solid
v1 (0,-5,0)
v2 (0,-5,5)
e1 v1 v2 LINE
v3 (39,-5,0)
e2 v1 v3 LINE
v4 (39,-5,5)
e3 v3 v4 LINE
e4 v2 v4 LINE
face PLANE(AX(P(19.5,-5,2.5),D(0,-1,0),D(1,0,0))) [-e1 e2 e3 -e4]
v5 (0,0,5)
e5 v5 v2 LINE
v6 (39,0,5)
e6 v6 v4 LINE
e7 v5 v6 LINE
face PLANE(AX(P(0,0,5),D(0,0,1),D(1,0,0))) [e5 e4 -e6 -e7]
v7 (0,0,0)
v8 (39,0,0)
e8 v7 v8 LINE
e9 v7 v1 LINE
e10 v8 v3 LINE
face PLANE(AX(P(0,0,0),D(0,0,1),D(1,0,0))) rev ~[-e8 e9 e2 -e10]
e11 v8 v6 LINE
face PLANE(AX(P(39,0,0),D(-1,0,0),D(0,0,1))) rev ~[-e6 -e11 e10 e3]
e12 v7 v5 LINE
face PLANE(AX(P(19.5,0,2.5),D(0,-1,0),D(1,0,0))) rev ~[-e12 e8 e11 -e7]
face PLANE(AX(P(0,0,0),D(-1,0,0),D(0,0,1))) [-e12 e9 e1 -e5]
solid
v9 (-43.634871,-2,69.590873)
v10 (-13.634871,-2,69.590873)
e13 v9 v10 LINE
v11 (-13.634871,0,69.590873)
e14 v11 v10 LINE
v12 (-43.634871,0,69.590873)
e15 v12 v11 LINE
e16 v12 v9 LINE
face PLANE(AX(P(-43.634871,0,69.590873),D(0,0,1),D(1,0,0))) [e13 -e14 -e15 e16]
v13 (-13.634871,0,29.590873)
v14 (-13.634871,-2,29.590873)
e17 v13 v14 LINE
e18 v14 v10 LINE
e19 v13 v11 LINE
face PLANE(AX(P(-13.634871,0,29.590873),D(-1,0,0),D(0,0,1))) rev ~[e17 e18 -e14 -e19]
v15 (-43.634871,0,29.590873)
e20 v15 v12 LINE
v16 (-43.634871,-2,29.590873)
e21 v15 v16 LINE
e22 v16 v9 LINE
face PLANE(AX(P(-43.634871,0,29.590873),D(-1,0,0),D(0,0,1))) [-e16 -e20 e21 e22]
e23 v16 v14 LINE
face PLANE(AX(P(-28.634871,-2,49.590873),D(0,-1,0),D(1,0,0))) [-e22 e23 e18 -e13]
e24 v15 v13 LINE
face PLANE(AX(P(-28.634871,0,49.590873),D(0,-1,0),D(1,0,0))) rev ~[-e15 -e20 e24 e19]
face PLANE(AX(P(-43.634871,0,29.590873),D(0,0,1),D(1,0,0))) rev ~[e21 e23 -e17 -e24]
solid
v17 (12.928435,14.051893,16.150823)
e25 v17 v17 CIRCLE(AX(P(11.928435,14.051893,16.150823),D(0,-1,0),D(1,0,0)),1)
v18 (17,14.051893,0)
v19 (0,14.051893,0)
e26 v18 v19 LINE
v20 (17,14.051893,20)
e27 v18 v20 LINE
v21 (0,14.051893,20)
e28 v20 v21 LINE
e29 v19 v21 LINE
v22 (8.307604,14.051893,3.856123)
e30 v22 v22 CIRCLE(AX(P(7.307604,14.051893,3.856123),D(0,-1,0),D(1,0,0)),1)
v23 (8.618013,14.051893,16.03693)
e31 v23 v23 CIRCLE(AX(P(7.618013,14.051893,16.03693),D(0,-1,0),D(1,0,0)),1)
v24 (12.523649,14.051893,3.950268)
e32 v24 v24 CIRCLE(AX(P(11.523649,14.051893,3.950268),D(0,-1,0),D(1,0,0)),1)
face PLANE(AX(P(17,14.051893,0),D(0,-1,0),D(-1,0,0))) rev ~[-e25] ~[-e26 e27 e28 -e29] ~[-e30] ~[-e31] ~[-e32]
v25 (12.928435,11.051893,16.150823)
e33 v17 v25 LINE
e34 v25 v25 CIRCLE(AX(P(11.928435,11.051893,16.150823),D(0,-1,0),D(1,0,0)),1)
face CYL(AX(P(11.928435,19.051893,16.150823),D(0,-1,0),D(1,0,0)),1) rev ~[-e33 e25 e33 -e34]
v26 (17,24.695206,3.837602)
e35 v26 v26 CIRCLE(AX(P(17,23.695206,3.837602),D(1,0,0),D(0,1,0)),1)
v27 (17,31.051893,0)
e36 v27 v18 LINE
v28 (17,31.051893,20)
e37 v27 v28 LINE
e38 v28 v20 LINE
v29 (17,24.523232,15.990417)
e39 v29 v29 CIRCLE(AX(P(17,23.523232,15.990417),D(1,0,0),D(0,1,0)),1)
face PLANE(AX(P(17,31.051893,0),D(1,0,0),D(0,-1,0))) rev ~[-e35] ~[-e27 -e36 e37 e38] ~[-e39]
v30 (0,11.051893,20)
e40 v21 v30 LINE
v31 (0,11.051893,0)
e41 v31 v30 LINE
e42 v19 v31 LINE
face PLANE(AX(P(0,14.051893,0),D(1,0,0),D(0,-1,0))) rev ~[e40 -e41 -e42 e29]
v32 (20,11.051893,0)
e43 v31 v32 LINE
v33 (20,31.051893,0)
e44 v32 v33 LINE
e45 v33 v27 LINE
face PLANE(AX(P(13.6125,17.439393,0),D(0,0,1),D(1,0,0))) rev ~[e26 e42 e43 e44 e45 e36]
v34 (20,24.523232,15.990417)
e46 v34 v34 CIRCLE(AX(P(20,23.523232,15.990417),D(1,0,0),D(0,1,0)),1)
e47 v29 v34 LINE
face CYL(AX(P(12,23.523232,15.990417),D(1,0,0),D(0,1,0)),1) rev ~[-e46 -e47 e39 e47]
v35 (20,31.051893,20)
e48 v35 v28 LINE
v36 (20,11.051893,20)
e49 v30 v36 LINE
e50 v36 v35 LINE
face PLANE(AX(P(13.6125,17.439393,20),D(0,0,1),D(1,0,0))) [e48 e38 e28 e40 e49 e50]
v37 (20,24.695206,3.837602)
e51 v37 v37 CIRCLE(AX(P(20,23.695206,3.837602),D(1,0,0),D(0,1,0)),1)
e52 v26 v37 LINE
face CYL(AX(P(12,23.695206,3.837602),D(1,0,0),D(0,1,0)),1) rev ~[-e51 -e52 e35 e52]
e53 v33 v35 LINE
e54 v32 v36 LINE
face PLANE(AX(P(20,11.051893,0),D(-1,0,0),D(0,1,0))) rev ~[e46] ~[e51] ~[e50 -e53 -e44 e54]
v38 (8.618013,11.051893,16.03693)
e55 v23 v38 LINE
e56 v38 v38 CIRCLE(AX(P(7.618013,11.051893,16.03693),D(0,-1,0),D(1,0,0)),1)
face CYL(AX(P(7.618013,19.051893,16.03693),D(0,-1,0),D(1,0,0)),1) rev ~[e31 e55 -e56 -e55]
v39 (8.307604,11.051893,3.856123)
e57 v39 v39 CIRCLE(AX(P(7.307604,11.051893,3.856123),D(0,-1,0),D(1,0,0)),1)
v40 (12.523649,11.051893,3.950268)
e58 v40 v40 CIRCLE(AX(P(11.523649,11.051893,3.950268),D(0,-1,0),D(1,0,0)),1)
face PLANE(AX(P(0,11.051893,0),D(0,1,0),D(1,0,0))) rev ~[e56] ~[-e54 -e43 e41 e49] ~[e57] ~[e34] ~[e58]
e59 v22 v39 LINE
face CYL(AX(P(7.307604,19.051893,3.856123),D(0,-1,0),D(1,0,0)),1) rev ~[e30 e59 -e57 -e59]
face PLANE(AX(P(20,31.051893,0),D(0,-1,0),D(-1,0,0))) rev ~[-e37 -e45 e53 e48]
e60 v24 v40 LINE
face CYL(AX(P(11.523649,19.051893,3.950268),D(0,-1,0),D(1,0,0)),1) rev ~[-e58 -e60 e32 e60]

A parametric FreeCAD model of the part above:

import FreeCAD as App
import Part
import Sketcher
from FreeCAD import Vector


def add_polygon(sketch, points):
    """Adds a closed chain of lines whose ends are joined by coincident constraints."""
    first, n = sketch.GeometryCount, len(points)
    for a, b in zip(points, points[1:] + points[:1]):
        sketch.addGeometry(Part.LineSegment(App.Vector(*a, 0), App.Vector(*b, 0)), False)
    for i in range(n):
        sketch.addConstraint(Sketcher.Constraint("Coincident", first + i, 2, first + (i + 1) % n, 1))

doc = App.newDocument("Part")
body = doc.addObject("PartDesign::Body", "Body")

# Sketch on XZ plane
sketch1 = body.newObject("Sketcher::SketchObject", "Sketch")
sketch1.AttachmentSupport = (doc.getObject("XZ_Plane"), [""])
sketch1.MapMode = "FlatFace"
add_polygon(sketch1, [(0, 5), (0, 0), (39, 0), (39, 5)])  # lines 0-3
sketch1.addConstraint(Sketcher.Constraint("Vertical", 0))
sketch1.addConstraint(Sketcher.Constraint("Horizontal", 1))
sketch1.addConstraint(Sketcher.Constraint("Vertical", 2))
sketch1.addConstraint(Sketcher.Constraint("Horizontal", 3))
sketch1.addConstraint(Sketcher.Constraint("Coincident", 0, 2, -1, 1))
sketch1.addConstraint(Sketcher.Constraint("DistanceX", 1, 1, 1, 2, 39.0))
sketch1.addConstraint(Sketcher.Constraint("DistanceY", 0, 2, 0, 1, 5.0))
pad1 = body.newObject("PartDesign::Pad", "Pad")
pad1.Profile = sketch1
pad1.Length = 5
body2 = doc.addObject("PartDesign::Body", "Body001")

# Sketch on XZ plane
sketch2 = body2.newObject("Sketcher::SketchObject", "Sketch001")
sketch2.AttachmentSupport = (doc.getObject("XZ_Plane001"), [""])
sketch2.MapMode = "FlatFace"
add_polygon(sketch2, [(-44, 70), (-44, 30), (-14, 30), (-14, 70)])  # lines 0-3
sketch2.addConstraint(Sketcher.Constraint("Vertical", 0))
sketch2.addConstraint(Sketcher.Constraint("Horizontal", 1))
sketch2.addConstraint(Sketcher.Constraint("Vertical", 2))
sketch2.addConstraint(Sketcher.Constraint("Horizontal", 3))
sketch2.addConstraint(Sketcher.Constraint("DistanceX", 1, 1, 1, 2, 30.0))
sketch2.addConstraint(Sketcher.Constraint("DistanceY", 0, 2, 0, 1, 40.0))
sketch2.addConstraint(Sketcher.Constraint("DistanceX", 0, 2, -1, 1, 43.634871))
sketch2.addConstraint(Sketcher.Constraint("DistanceY", -1, 1, 0, 2, 29.590873))
pad2 = body2.newObject("PartDesign::Pad", "Pad001")
pad2.Profile = sketch2
pad2.Length = 2
body3 = doc.addObject("PartDesign::Body", "Body002")

# Sketch on XY plane
sketch3 = body3.newObject("Sketcher::SketchObject", "Sketch002")
sketch3.AttachmentSupport = (doc.getObject("XY_Plane002"), [""])
sketch3.MapMode = "FlatFace"
add_polygon(sketch3, [(17, 14.1), (0, 14.1), (0, 11.1), (20, 11.1), (20, 31.1), (17, 31.1)])  # lines 0-5
sketch3.addConstraint(Sketcher.Constraint("Horizontal", 0))
sketch3.addConstraint(Sketcher.Constraint("Vertical", 1))
sketch3.addConstraint(Sketcher.Constraint("Horizontal", 2))
sketch3.addConstraint(Sketcher.Constraint("Vertical", 3))
sketch3.addConstraint(Sketcher.Constraint("Horizontal", 4))
sketch3.addConstraint(Sketcher.Constraint("Vertical", 5))
sketch3.addConstraint(Sketcher.Constraint("PointOnObject", 0, 2, -2))
sketch3.addConstraint(Sketcher.Constraint("Equal", 4, 1))
sketch3.addConstraint(Sketcher.Constraint("Equal", 2, 3))
sketch3.addConstraint(Sketcher.Constraint("DistanceX", 0, 2, 0, 1, 17.0))
sketch3.addConstraint(Sketcher.Constraint("DistanceX", 2, 1, 2, 2, 20.0))
sketch3.addConstraint(Sketcher.Constraint("DistanceY", -1, 1, 0, 2, 14.051893))
pad3 = body3.newObject("PartDesign::Pad", "Pad002")
pad3.Profile = sketch3
pad3.Length = 20

# Sketch on XZ plane
sketch4 = body3.newObject("Sketcher::SketchObject", "Sketch003")
sketch4.AttachmentSupport = (doc.getObject("XZ_Plane002"), [""])
sketch4.MapMode = "FlatFace"
sketch4.AttachmentOffset = App.Placement(Vector(0, 0, -14.051893), App.Rotation())
sketch4.addGeometry(Part.Circle(Vector(7.3, 3.9, 0), Vector(0, 0, 1), 1), False)
sketch4.addGeometry(Part.Circle(Vector(11.5, 4, 0), Vector(0, 0, 1), 1), False)
sketch4.addGeometry(Part.Circle(Vector(11.9, 16.2, 0), Vector(0, 0, 1), 1), False)
sketch4.addGeometry(Part.Circle(Vector(7.6, 16, 0), Vector(0, 0, 1), 1), False)
sketch4.addConstraint(Sketcher.Constraint("Equal", 0, 1))
sketch4.addConstraint(Sketcher.Constraint("Equal", 1, 2))
sketch4.addConstraint(Sketcher.Constraint("Equal", 2, 3))
sketch4.addConstraint(Sketcher.Constraint("Diameter", 0, 2.0))
sketch4.addConstraint(Sketcher.Constraint("DistanceY", 0, 3, 2, 3, 12.2947))
sketch4.addConstraint(Sketcher.Constraint("DistanceX", -1, 1, 1, 3, 11.523649))
sketch4.addConstraint(Sketcher.Constraint("DistanceY", -1, 1, 1, 3, 3.950268))
sketch4.addConstraint(Sketcher.Constraint("DistanceY", -1, 1, 3, 3, 16.03693))
sketch4.addConstraint(Sketcher.Constraint("DistanceX", 0, 3, 2, 3, 4.620831))
sketch4.addConstraint(Sketcher.Constraint("DistanceX", 0, 3, 3, 3, 0.310409))
sketch4.addConstraint(Sketcher.Constraint("DistanceX", -1, 1, 0, 3, 7.307604))
sketch4.addConstraint(Sketcher.Constraint("DistanceY", -1, 1, 0, 3, 3.856123))
doc.recompute()
hole = body3.newObject("PartDesign::Hole", "Hole")
hole.Profile = sketch4
hole.ThreadType = "None"
hole.Diameter = 2
hole.DepthType = "Dimension"
hole.Depth = 5
hole.DrillPoint = "Angled"
hole.DrillPointAngle = 118
hole.Reversed = True

# Sketch on YZ plane
sketch5 = body3.newObject("Sketcher::SketchObject", "Sketch004")
sketch5.AttachmentSupport = (doc.getObject("YZ_Plane002"), [""])
sketch5.MapMode = "FlatFace"
sketch5.AttachmentOffset = App.Placement(Vector(0, 0, 17), App.Rotation())
sketch5.addGeometry(Part.Circle(Vector(23.5, 16, 0), Vector(0, 0, 1), 1), False)
sketch5.addGeometry(Part.Circle(Vector(23.7, 3.8, 0), Vector(0, 0, 1), 1), False)
sketch5.addConstraint(Sketcher.Constraint("Equal", 0, 1))
sketch5.addConstraint(Sketcher.Constraint("Diameter", 0, 2.0))
sketch5.addConstraint(Sketcher.Constraint("DistanceY", -1, 1, 1, 3, 3.837602))
sketch5.addConstraint(Sketcher.Constraint("DistanceX", -1, 1, 0, 3, 23.523232))
sketch5.addConstraint(Sketcher.Constraint("DistanceY", -1, 1, 0, 3, 15.990417))
sketch5.addConstraint(Sketcher.Constraint("DistanceX", -1, 1, 1, 3, 23.695206))
doc.recompute()
hole2 = body3.newObject("PartDesign::Hole", "Hole001")
hole2.Profile = sketch5
hole2.ThreadType = "None"
hole2.Diameter = 2
hole2.DepthType = "Dimension"
hole2.Depth = 5
hole2.DrillPoint = "Angled"
hole2.DrillPointAngle = 118
hole2.Reversed = True

doc.recompute()
